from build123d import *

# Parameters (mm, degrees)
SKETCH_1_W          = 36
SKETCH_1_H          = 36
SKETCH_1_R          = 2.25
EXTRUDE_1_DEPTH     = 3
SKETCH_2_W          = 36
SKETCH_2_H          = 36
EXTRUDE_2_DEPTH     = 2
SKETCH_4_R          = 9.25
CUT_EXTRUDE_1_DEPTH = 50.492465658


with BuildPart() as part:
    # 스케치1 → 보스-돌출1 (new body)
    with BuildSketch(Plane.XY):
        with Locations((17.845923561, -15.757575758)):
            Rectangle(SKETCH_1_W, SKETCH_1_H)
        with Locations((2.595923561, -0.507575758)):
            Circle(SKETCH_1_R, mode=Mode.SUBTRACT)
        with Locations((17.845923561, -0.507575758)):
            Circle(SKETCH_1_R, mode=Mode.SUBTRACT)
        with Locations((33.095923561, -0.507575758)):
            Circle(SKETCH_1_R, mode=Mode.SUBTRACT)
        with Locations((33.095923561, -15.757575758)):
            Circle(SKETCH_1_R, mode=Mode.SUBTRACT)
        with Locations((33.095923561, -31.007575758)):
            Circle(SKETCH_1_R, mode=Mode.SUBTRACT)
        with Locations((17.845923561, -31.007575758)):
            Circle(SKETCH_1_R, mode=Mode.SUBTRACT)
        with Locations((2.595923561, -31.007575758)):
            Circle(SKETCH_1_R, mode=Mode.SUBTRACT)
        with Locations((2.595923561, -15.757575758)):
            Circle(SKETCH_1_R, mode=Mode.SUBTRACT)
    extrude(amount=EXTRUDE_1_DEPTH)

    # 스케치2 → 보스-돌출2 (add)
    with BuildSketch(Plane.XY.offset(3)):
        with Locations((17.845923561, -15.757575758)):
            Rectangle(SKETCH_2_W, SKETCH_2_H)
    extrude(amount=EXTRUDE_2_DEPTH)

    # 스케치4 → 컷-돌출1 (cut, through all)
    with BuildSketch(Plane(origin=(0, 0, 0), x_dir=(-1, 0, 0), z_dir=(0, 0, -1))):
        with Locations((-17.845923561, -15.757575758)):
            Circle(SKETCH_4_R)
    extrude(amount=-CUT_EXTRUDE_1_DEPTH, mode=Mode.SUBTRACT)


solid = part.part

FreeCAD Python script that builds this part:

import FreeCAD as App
import Part
import Sketcher
from FreeCAD import Vector


def add_polygon(sketch, points):
    """Adds a closed chain of lines whose ends are joined by coincident constraints."""
    first, n = sketch.GeometryCount, len(points)
    for a, b in zip(points, points[1:] + points[:1]):
        sketch.addGeometry(Part.LineSegment(App.Vector(*a, 0), App.Vector(*b, 0)), False)
    for i in range(n):
        sketch.addConstraint(Sketcher.Constraint("Coincident", first + i, 2, first + (i + 1) % n, 1))

doc = App.newDocument("Part")
body = doc.addObject("PartDesign::Body", "Body")

# Sketch on XY plane
sketch1 = body.newObject("Sketcher::SketchObject", "Sketch")
sketch1.AttachmentSupport = (doc.getObject("XY_Plane"), [""])
sketch1.MapMode = "FlatFace"
add_polygon(sketch1, [(-0.154076, 2.242424), (-0.154076, -33.757576), (35.845924, -33.757576), (35.845924, 2.242424)])  # lines 0-3
sketch1.addGeometry(Part.Circle(Vector(2.595924, -31.007576, 0), Vector(0, 0, 1), 2.25), False)  # 4
sketch1.addGeometry(Part.Circle(Vector(17.845924, -31.007576, 0), Vector(0, 0, 1), 2.25), False)  # 5
sketch1.addGeometry(Part.Circle(Vector(33.095924, -31.007576, 0), Vector(0, 0, 1), 2.25), False)  # 6
sketch1.addGeometry(Part.Circle(Vector(2.595924, -15.757576, 0), Vector(0, 0, 1), 2.25), False)  # 7
sketch1.addGeometry(Part.Circle(Vector(2.595924, -0.507576, 0), Vector(0, 0, 1), 2.25), False)  # 8
sketch1.addGeometry(Part.Circle(Vector(33.095924, -15.757576, 0), Vector(0, 0, 1), 2.25), False)  # 9
sketch1.addGeometry(Part.Circle(Vector(17.845924, -0.507576, 0), Vector(0, 0, 1), 2.25), False)  # 10
sketch1.addGeometry(Part.Circle(Vector(33.095924, -0.507576, 0), Vector(0, 0, 1), 2.25), False)  # 11
sketch1.addConstraint([
    Sketcher.Constraint("Vertical", 0),
    Sketcher.Constraint("Horizontal", 1),
    Sketcher.Constraint("Vertical", 2),
    Sketcher.Constraint("Horizontal", 3),
    Sketcher.Constraint("Equal", 4, 5),
    Sketcher.Constraint("Equal", 5, 6),
    Sketcher.Constraint("Equal", 6, 7),
    Sketcher.Constraint("Equal", 7, 8),
    Sketcher.Constraint("Equal", 8, 9),
    Sketcher.Constraint("Equal", 9, 10),
    Sketcher.Constraint("Equal", 10, 11),
    Sketcher.Constraint("Horizontal", 4, 3, 5, 3),
    Sketcher.Constraint("Horizontal", 5, 3, 6, 3),
    Sketcher.Constraint("Horizontal", 7, 3, 9, 3),
    Sketcher.Constraint("Horizontal", 8, 3, 10, 3),
    Sketcher.Constraint("Horizontal", 10, 3, 11, 3),
    Sketcher.Constraint("Vertical", 4, 3, 7, 3),
    Sketcher.Constraint("Vertical", 7, 3, 8, 3),
    Sketcher.Constraint("Vertical", 6, 3, 9, 3),
    Sketcher.Constraint("Vertical", 5, 3, 10, 3),
    Sketcher.Constraint("Vertical", 9, 3, 11, 3),
    Sketcher.Constraint("Equal", 3, 0),
    Sketcher.Constraint("Diameter", 4, 4.5),
    Sketcher.Constraint("DistanceX", 1, 1, 1, 2, 36.0),
    Sketcher.Constraint("DistanceX", 0, 2, 5, 3, 18.0),
    Sketcher.Constraint("DistanceY", 0, 2, 7, 3, 18.0),
    Sketcher.Constraint("DistanceX", 4, 3, 6, 3, 30.5),
    Sketcher.Constraint("DistanceY", 4, 3, 8, 3, 30.5),
    Sketcher.Constraint("DistanceX", 4, 3, 5, 3, 15.25),
    Sketcher.Constraint("DistanceY", 4, 3, 7, 3, 15.25),
    Sketcher.Constraint("DistanceX", -1, 1, 4, 3, 2.595924),
    Sketcher.Constraint("DistanceY", 4, 3, -1, 1, 31.007576),
])
pad1 = body.newObject("PartDesign::Pad", "Pad")
pad1.Profile = sketch1
pad1.Length = 3

# Sketch on XY plane
sketch2 = body.newObject("Sketcher::SketchObject", "Sketch001")
sketch2.AttachmentSupport = (doc.getObject("XY_Plane"), [""])
sketch2.MapMode = "FlatFace"
sketch2.AttachmentOffset = App.Placement(Vector(0, 0, 3), App.Rotation())
add_polygon(sketch2, [(-0.154076, 2.242424), (-0.154076, -33.757576), (35.845924, -33.757576), (35.845924, 2.242424)])  # lines 0-3
sketch2.addConstraint([
    Sketcher.Constraint("Vertical", 0),
    Sketcher.Constraint("Horizontal", 1),
    Sketcher.Constraint("Vertical", 2),
    Sketcher.Constraint("Horizontal", 3),
    Sketcher.Constraint("Equal", 3, 0),
    Sketcher.Constraint("DistanceX", 1, 1, 1, 2, 36.0),
    Sketcher.Constraint("DistanceX", 0, 2, -1, 1, 0.154076),
    Sketcher.Constraint("DistanceY", 0, 2, -1, 1, 33.757576),
])
pad2 = body.newObject("PartDesign::Pad", "Pad001")
pad2.Profile = sketch2
pad2.Length = 2

# Sketch on XY plane
sketch3 = body.newObject("Sketcher::SketchObject", "Sketch002")
sketch3.AttachmentSupport = (doc.getObject("XY_Plane"), [""])
sketch3.MapMode = "FlatFace"
sketch3.addGeometry(Part.Circle(Vector(17.845924, -15.757576, 0), Vector(0, 0, 1), 9.25), False)
sketch3.addConstraint([
    Sketcher.Constraint("Diameter", 0, 18.5),
    Sketcher.Constraint("DistanceX", -1, 1, 0, 3, 17.845924),
    Sketcher.Constraint("DistanceY", 0, 3, -1, 1, 15.757576),
])
pocket1 = body.newObject("PartDesign::Pocket", "Pocket")
pocket1.Profile = sketch3
pocket1.Type = "ThroughAll"
pocket1.Reversed = True

doc.recompute()
